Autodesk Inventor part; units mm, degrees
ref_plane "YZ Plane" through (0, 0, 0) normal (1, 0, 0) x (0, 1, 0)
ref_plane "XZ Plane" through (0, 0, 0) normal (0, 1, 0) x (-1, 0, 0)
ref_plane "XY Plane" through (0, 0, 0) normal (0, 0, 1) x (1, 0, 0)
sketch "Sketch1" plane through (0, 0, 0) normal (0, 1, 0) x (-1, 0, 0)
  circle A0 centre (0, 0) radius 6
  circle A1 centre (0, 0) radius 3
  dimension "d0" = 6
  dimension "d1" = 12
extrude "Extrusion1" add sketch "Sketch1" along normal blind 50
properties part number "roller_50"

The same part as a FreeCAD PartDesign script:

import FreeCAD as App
import Part
import Sketcher
from FreeCAD import Vector

doc = App.newDocument("Part")
body = doc.addObject("PartDesign::Body", "Body")

# Sketch on XZ plane
sketch1 = doc.addObject("Sketcher::SketchObject", "Sketch")
body.addObject(sketch1)
sketch1.AttachmentSupport = (doc.XZ_Plane, [""])
sketch1.MapMode = "FlatFace"
sketch1.addGeometry(Part.Circle(Vector(0, 0, 0), Vector(0, 0, 1), 6), False)
sketch1.addGeometry(Part.Circle(Vector(0, 0, 0), Vector(0, 0, 1), 3), False)
sketch1.addConstraint(Sketcher.Constraint("Coincident", 0, 3, -1, 1))
sketch1.addConstraint(Sketcher.Constraint("Coincident", 1, 3, -1, 1))
sketch1.addConstraint(Sketcher.Constraint("Diameter", 0, 12.0))
sketch1.addConstraint(Sketcher.Constraint("Diameter", 1, 6.0))
pad1 = doc.addObject("PartDesign::Pad", "Pad")
body.addObject(pad1)
pad1.Profile = sketch1
pad1.Length = 50
pad1.Reversed = True

doc.recompute()
